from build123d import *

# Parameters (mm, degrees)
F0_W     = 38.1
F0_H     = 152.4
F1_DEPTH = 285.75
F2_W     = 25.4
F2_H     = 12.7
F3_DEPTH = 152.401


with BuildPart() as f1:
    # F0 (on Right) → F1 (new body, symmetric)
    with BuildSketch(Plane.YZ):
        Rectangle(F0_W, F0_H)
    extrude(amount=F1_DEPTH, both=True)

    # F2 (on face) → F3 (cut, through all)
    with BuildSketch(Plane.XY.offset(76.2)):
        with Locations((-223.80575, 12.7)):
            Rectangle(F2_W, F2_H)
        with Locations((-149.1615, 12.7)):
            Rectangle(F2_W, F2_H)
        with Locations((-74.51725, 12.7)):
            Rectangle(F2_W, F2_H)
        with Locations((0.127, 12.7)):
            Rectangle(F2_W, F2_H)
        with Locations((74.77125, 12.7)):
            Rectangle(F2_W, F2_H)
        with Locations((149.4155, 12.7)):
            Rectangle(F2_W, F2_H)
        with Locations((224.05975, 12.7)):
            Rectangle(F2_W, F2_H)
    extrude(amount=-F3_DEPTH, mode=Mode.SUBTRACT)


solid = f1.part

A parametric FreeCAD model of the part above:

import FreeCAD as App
import Part
import Sketcher
Q = App.Units.Quantity


def add_polygon(sketch, points):
    """Adds a closed chain of lines whose ends are joined by coincident constraints."""
    first, n = sketch.GeometryCount, len(points)
    for a, b in zip(points, points[1:] + points[:1]):
        sketch.addGeometry(Part.LineSegment(App.Vector(*a, 0), App.Vector(*b, 0)), False)
    for i in range(n):
        sketch.addConstraint(Sketcher.Constraint("Coincident", first + i, 2, first + (i + 1) % n, 1))

doc = App.newDocument("Part")
params = doc.addObject("Spreadsheet::Sheet", "Params")
for row, (alias, value) in enumerate([
    ("sketch1_height", "6 in"),
    ("sketch1_width", "1.5 in"),
    ("pad1_length", "22.5 in"),
    ("sketch2_width", "1 in"),
    ("sketch2_height", "0.5 in"),
], start=1):
    params.set(f"A{row}", alias)
    params.set(f"B{row}", "=" + value)
    params.setAlias(f"B{row}", alias)

body = doc.addObject("PartDesign::Body", "Body")

# Sketch on YZ plane
sketch1 = body.newObject("Sketcher::SketchObject", "Sketch")
sketch1.AttachmentSupport = (doc.getObject("YZ_Plane"), [""])
sketch1.MapMode = "FlatFace"
add_polygon(sketch1, [(-19, 76), (-19, -76), (19, -76), (19, 76)])  # lines 0-3
sketch1.addConstraint(Sketcher.Constraint("Vertical", 0))
sketch1.addConstraint(Sketcher.Constraint("Horizontal", 1))
sketch1.addConstraint(Sketcher.Constraint("Vertical", 2))
sketch1.addConstraint(Sketcher.Constraint("Horizontal", 3))
sketch1.addConstraint(Sketcher.Constraint("Symmetric", 0, 2, 2, 2, -1, 1))
sketch1.addConstraint(Sketcher.Constraint("DistanceY", 0, 2, 0, 1, Q("6 in")))
sketch1.addConstraint(Sketcher.Constraint("DistanceX", 1, 1, 1, 2, Q("1.5 in")))
sketch1.setExpression("Constraints[9]", "Params.sketch1_height")
sketch1.setExpression("Constraints[10]", "Params.sketch1_width")
pad1 = body.newObject("PartDesign::Pad", "Pad")
pad1.Profile = sketch1
pad1.setExpression("Length", "Params.pad1_length")
pad1.Midplane = True

# Sketch on XY plane
sketch2 = body.newObject("Sketcher::SketchObject", "Sketch001")
sketch2.AttachmentSupport = (doc.getObject("XY_Plane"), [""])
sketch2.MapMode = "FlatFace"
sketch2.AttachmentOffset = App.Placement(App.Vector(0, 0, 3 * 25.4), App.Rotation())
add_polygon(sketch2, [(-237, 19), (-237, 6), (-211, 6), (-211, 19)])  # lines 0-3
add_polygon(sketch2, [(-162, 19), (-162, 6), (-136, 6), (-136, 19)])  # lines 4-7
add_polygon(sketch2, [(-87, 19), (-87, 6), (-62, 6), (-62, 19)])  # lines 8-11
add_polygon(sketch2, [(-13, 19), (-13, 6), (13, 6), (13, 19)])  # lines 12-15
add_polygon(sketch2, [(62, 19), (62, 6), (87, 6), (87, 19)])  # lines 16-19
add_polygon(sketch2, [(137, 19), (137, 6), (162, 6), (162, 19)])  # lines 20-23
add_polygon(sketch2, [(211, 19), (211, 6), (237, 6), (237, 19)])  # lines 24-27
sketch2.addConstraint(Sketcher.Constraint("Vertical", 0))
sketch2.addConstraint(Sketcher.Constraint("Horizontal", 1))
sketch2.addConstraint(Sketcher.Constraint("Vertical", 2))
sketch2.addConstraint(Sketcher.Constraint("Horizontal", 3))
sketch2.addConstraint(Sketcher.Constraint("Vertical", 4))
sketch2.addConstraint(Sketcher.Constraint("Horizontal", 5))
sketch2.addConstraint(Sketcher.Constraint("Vertical", 6))
sketch2.addConstraint(Sketcher.Constraint("Horizontal", 7))
sketch2.addConstraint(Sketcher.Constraint("Vertical", 8))
sketch2.addConstraint(Sketcher.Constraint("Horizontal", 9))
sketch2.addConstraint(Sketcher.Constraint("Vertical", 10))
sketch2.addConstraint(Sketcher.Constraint("Horizontal", 11))
sketch2.addConstraint(Sketcher.Constraint("Vertical", 12))
sketch2.addConstraint(Sketcher.Constraint("Horizontal", 13))
sketch2.addConstraint(Sketcher.Constraint("Vertical", 14))
sketch2.addConstraint(Sketcher.Constraint("Horizontal", 15))
sketch2.addConstraint(Sketcher.Constraint("Vertical", 16))
sketch2.addConstraint(Sketcher.Constraint("Horizontal", 17))
sketch2.addConstraint(Sketcher.Constraint("Vertical", 18))
sketch2.addConstraint(Sketcher.Constraint("Horizontal", 19))
sketch2.addConstraint(Sketcher.Constraint("Vertical", 20))
sketch2.addConstraint(Sketcher.Constraint("Horizontal", 21))
sketch2.addConstraint(Sketcher.Constraint("Vertical", 22))
sketch2.addConstraint(Sketcher.Constraint("Horizontal", 23))
sketch2.addConstraint(Sketcher.Constraint("Vertical", 24))
sketch2.addConstraint(Sketcher.Constraint("Horizontal", 25))
sketch2.addConstraint(Sketcher.Constraint("Vertical", 26))
sketch2.addConstraint(Sketcher.Constraint("Horizontal", 27))
sketch2.addConstraint(Sketcher.Constraint("Horizontal", 1, 2, 4, 2))
sketch2.addConstraint(Sketcher.Constraint("Horizontal", 3, 2, 6, 2))
sketch2.addConstraint(Sketcher.Constraint("Horizontal", 5, 2, 8, 2))
sketch2.addConstraint(Sketcher.Constraint("Horizontal", 7, 2, 10, 2))
sketch2.addConstraint(Sketcher.Constraint("Horizontal", 9, 2, 12, 2))
sketch2.addConstraint(Sketcher.Constraint("Horizontal", 11, 2, 14, 2))
sketch2.addConstraint(Sketcher.Constraint("Horizontal", 13, 2, 16, 2))
sketch2.addConstraint(Sketcher.Constraint("Horizontal", 15, 2, 18, 2))
sketch2.addConstraint(Sketcher.Constraint("Horizontal", 17, 2, 20, 2))
sketch2.addConstraint(Sketcher.Constraint("Horizontal", 19, 2, 22, 2))
sketch2.addConstraint(Sketcher.Constraint("Horizontal", 21, 2, 24, 2))
sketch2.addConstraint(Sketcher.Constraint("Horizontal", 23, 2, 26, 2))
sketch2.addConstraint(Sketcher.Constraint("Equal", 3, 5))
sketch2.addConstraint(Sketcher.Constraint("Equal", 7, 9))
sketch2.addConstraint(Sketcher.Constraint("Equal", 11, 13))
sketch2.addConstraint(Sketcher.Constraint("Equal", 15, 17))
sketch2.addConstraint(Sketcher.Constraint("Equal", 19, 21))
sketch2.addConstraint(Sketcher.Constraint("Equal", 23, 25))
sketch2.addConstraint(Sketcher.Constraint("DistanceX", 1, 1, 1, 2, Q("1 in")))
sketch2.addConstraint(Sketcher.Constraint("DistanceY", 0, 2, 0, 1, Q("0.5 in")))
sketch2.addConstraint(Sketcher.Constraint("DistanceY", -1, 1, 0, 2, Q("0.25 in")))
sketch2.addConstraint(Sketcher.Constraint("DistanceX", 12, 2, -1, 1, Q("0.495 in")))
sketch2.addConstraint(Sketcher.Constraint("DistanceX", 4, 2, -1, 1, Q("6.3725 in")))
sketch2.addConstraint(Sketcher.Constraint("DistanceX", -1, 1, 20, 2, Q("5.3825 in")))
sketch2.addConstraint(Sketcher.Constraint("DistanceX", 1, 2, 8, 2, Q("4.8775 in")))
sketch2.addConstraint(Sketcher.Constraint("DistanceX", 9, 2, 16, 2, Q("4.8775 in")))
sketch2.addConstraint(Sketcher.Constraint("DistanceX", 17, 2, 24, 2, Q("4.8775 in")))
sketch2.addConstraint(Sketcher.Constraint("DistanceX", 0, 2, -1, 1, Q("236.50575 mm")))
sketch2.setExpression("Constraints[74]", "Params.sketch2_width")
sketch2.setExpression("Constraints[75]", "Params.sketch2_height")
pocket1 = body.newObject("PartDesign::Pocket", "Pocket")
pocket1.Profile = sketch2
pocket1.Type = "ThroughAll"

doc.recompute()
